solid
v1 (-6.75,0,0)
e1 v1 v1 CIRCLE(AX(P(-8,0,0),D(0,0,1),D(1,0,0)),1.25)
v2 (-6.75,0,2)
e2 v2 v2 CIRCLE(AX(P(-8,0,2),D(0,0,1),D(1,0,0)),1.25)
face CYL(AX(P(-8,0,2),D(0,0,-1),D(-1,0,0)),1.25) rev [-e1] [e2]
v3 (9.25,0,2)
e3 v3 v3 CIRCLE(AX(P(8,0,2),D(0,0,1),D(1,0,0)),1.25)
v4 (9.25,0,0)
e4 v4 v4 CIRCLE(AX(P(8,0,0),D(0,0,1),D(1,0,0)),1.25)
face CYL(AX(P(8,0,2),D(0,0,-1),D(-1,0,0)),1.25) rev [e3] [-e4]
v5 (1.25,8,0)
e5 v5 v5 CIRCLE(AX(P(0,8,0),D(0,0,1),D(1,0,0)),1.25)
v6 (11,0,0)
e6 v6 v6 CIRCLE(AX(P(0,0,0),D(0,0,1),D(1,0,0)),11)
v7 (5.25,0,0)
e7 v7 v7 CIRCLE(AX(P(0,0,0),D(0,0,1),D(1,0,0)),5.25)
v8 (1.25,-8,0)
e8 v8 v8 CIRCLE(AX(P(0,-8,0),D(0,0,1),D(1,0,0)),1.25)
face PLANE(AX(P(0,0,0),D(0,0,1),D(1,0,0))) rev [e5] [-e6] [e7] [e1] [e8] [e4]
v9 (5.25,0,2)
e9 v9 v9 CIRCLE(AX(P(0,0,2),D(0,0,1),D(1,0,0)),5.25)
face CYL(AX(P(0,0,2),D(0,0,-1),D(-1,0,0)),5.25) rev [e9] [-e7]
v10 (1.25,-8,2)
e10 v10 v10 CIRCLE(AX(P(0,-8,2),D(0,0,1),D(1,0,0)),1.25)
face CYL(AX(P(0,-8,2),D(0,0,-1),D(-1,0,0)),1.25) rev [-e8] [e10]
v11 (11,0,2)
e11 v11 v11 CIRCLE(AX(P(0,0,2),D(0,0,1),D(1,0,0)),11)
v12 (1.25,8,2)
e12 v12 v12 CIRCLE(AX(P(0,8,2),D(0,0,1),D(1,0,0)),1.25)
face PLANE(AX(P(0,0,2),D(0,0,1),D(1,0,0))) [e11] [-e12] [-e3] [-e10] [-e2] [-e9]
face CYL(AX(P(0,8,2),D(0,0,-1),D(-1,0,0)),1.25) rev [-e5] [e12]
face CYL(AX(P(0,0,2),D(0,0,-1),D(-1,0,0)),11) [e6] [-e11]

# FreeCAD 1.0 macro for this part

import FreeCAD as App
import Part
import Sketcher
from FreeCAD import Vector
Q = App.Units.Quantity

doc = App.newDocument("Part")
params = doc.addObject("Spreadsheet::Sheet", "Params")
for row, (alias, value) in enumerate([
    ("sketch1_diameter", "22 mm"),
    ("sketch1_diameter2", "2.5 mm"),
    ("sketch1_diameter3", "10.5 mm"),
    ("pad1_length", "2 mm"),
], start=1):
    params.set(f"A{row}", alias)
    params.set(f"B{row}", "=" + value)
    params.setAlias(f"B{row}", alias)

body = doc.addObject("PartDesign::Body", "Body")

# Sketch on XY plane
sketch1 = body.newObject("Sketcher::SketchObject", "Sketch")
sketch1.AttachmentSupport = (doc.getObject("XY_Plane"), [""])
sketch1.MapMode = "FlatFace"
sketch1.addGeometry(Part.Circle(Vector(0, 0, 0), Vector(0, 0, 1), 11), False)
sketch1.addGeometry(Part.Circle(Vector(0, -8, 0), Vector(0, 0, 1), 1.2), False)
sketch1.addGeometry(Part.Circle(Vector(-8, 0, 0), Vector(0, 0, 1), 1.2), False)
sketch1.addGeometry(Part.Circle(Vector(0, 0, 0), Vector(0, 0, 1), 5.2), False)
sketch1.addGeometry(Part.Circle(Vector(8, 0, 0), Vector(0, 0, 1), 1.2), False)
sketch1.addGeometry(Part.Circle(Vector(0, 8, 0), Vector(0, 0, 1), 1.2), False)
sketch1.addConstraint(Sketcher.Constraint("Coincident", 0, 3, -1, 1))
sketch1.addConstraint(Sketcher.Constraint("Coincident", 3, 3, -1, 1))
sketch1.addConstraint(Sketcher.Constraint("Equal", 1, 2))
sketch1.addConstraint(Sketcher.Constraint("Equal", 2, 4))
sketch1.addConstraint(Sketcher.Constraint("Equal", 4, 5))
sketch1.addConstraint(Sketcher.Constraint("Symmetric", 2, 3, 4, 3, -1, 1))
sketch1.addConstraint(Sketcher.Constraint("Symmetric", 1, 3, 5, 3, -1, 1))
sketch1.addConstraint(Sketcher.Constraint("PointOnObject", 1, 3, -2))
sketch1.addConstraint(Sketcher.Constraint("PointOnObject", 2, 3, -1))
sketch1.addConstraint(Sketcher.Constraint("Diameter", 0, Q("22 mm")))
sketch1.addConstraint(Sketcher.Constraint("Diameter", 1, Q("2.5 mm")))
sketch1.addConstraint(Sketcher.Constraint("Diameter", 3, Q("10.5 mm")))
sketch1.addConstraint(Sketcher.Constraint("DistanceY", 1, 3, -1, 1, Q("8 mm")))
sketch1.addConstraint(Sketcher.Constraint("DistanceX", 2, 3, -1, 1, Q("8 mm")))
sketch1.setExpression("Constraints[9]", "Params.sketch1_diameter")
sketch1.setExpression("Constraints[10]", "Params.sketch1_diameter2")
sketch1.setExpression("Constraints[11]", "Params.sketch1_diameter3")
pad1 = body.newObject("PartDesign::Pad", "Pad")
pad1.Profile = sketch1
pad1.setExpression("Length", "Params.pad1_length")

doc.recompute()
